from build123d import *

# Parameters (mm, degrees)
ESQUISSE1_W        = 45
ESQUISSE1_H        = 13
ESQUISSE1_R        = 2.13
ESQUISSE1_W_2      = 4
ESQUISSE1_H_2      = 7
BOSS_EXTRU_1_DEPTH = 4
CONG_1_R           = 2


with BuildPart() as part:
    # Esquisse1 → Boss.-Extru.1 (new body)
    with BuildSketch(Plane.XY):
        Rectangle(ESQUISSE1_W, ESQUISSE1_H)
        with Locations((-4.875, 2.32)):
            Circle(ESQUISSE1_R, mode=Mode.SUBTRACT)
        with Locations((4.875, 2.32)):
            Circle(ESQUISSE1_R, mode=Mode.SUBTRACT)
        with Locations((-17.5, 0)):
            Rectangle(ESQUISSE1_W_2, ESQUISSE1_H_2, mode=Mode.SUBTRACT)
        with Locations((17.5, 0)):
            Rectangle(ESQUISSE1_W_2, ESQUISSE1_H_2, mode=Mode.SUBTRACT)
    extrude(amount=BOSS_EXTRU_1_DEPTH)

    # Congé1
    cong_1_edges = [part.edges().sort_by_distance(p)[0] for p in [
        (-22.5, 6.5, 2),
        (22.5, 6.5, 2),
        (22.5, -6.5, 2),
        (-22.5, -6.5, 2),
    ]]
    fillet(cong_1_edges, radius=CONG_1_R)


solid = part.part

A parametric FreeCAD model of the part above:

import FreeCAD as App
import Part
import Sketcher
from FreeCAD import Vector
Q = App.Units.Quantity


def edges_at(feature, points):
    """Names of the edges that pass closest to the given points."""
    edges = feature.Shape.Edges
    near = lambda p: min(range(len(edges)), key=lambda i: edges[i].distToShape(Part.Vertex(*p))[0])
    return sorted({f"Edge{near(p) + 1}" for p in points})

doc = App.newDocument("Part")
body = doc.addObject("PartDesign::Body", "Body")

# Sketch on XY plane
sketch1 = body.newObject("Sketcher::SketchObject", "Sketch")
sketch1.AttachmentSupport = (doc.getObject("XY_Plane"), [""])
sketch1.MapMode = "FlatFace"
sketch1.addGeometry([
    Part.LineSegment(Vector(-22.5, 6.5, 0), Vector(-22.5, -6.5, 0)),  # 0
    Part.LineSegment(Vector(-22.5, -6.5, 0), Vector(22.5, -6.5, 0)),  # 1
    Part.LineSegment(Vector(22.5, -6.5, 0), Vector(22.5, 6.5, 0)),  # 2
    Part.LineSegment(Vector(22.5, 6.5, 0), Vector(-22.5, 6.5, 0)),  # 3
    Part.LineSegment(Vector(-15.5, -3.5, 0), Vector(-19.5, -3.5, 0)),  # 4
    Part.LineSegment(Vector(-19.5, -3.5, 0), Vector(-19.5, 3.5, 0)),  # 5
    Part.LineSegment(Vector(-19.5, 3.5, 0), Vector(-15.5, 3.5, 0)),  # 6
    Part.LineSegment(Vector(-15.5, 3.5, 0), Vector(-15.5, -3.5, 0)),  # 7
    Part.LineSegment(Vector(19.5, -3.5, 0), Vector(15.5, -3.5, 0)),  # 8
    Part.LineSegment(Vector(15.5, -3.5, 0), Vector(15.5, 3.5, 0)),  # 9
    Part.LineSegment(Vector(15.5, 3.5, 0), Vector(19.5, 3.5, 0)),  # 10
    Part.LineSegment(Vector(19.5, 3.5, 0), Vector(19.5, -3.5, 0)),  # 11
    Part.Circle(Vector(-4.9, 2.3, 0), Vector(0, 0, 1), 2.1),  # 12
    Part.Circle(Vector(4.9, 2.3, 0), Vector(0, 0, 1), 2.1),  # 13
], False)
sketch1.addConstraint([
    Sketcher.Constraint("Coincident", 0, 2, 1, 1),
    Sketcher.Constraint("Coincident", 1, 2, 2, 1),
    Sketcher.Constraint("Coincident", 2, 2, 3, 1),
    Sketcher.Constraint("Coincident", 3, 2, 0, 1),
    Sketcher.Constraint("Coincident", 4, 2, 5, 1),
    Sketcher.Constraint("Coincident", 5, 2, 6, 1),
    Sketcher.Constraint("Coincident", 6, 2, 7, 1),
    Sketcher.Constraint("Coincident", 7, 2, 4, 1),
    Sketcher.Constraint("Coincident", 8, 2, 9, 1),
    Sketcher.Constraint("Coincident", 9, 2, 10, 1),
    Sketcher.Constraint("Coincident", 10, 2, 11, 1),
    Sketcher.Constraint("Coincident", 11, 2, 8, 1),
    Sketcher.Constraint("Vertical", 0),
    Sketcher.Constraint("Horizontal", 1),
    Sketcher.Constraint("Vertical", 2),
    Sketcher.Constraint("Horizontal", 3),
    Sketcher.Constraint("Horizontal", 4),
    Sketcher.Constraint("Vertical", 5),
    Sketcher.Constraint("Horizontal", 6),
    Sketcher.Constraint("Vertical", 7),
    Sketcher.Constraint("Horizontal", 8),
    Sketcher.Constraint("Vertical", 9),
    Sketcher.Constraint("Horizontal", 10),
    Sketcher.Constraint("Vertical", 11),
    Sketcher.Constraint("Equal", 12, 13),
    Sketcher.Constraint("Symmetric", 0, 2, 2, 2, -1, 1),
    Sketcher.Constraint("Symmetric", 6, 2, 8, 2, -1, 1),
    Sketcher.Constraint("Symmetric", 4, 2, 10, 2, -1, 1),
    Sketcher.Constraint("Symmetric", 12, 3, 13, 3, -2),
    Sketcher.Constraint("Horizontal", 7, 2, 8, 2),
    Sketcher.Constraint("Diameter", 12, Q("4.26 mm")),
    Sketcher.Constraint("DistanceX", 1, 1, 1, 2, Q("45 mm")),
    Sketcher.Constraint("DistanceX", 4, 2, 4, 1, Q("4 mm")),
    Sketcher.Constraint("DistanceY", 0, 2, 0, 1, Q("13 mm")),
    Sketcher.Constraint("DistanceY", 5, 1, 5, 2, Q("7 mm")),
    Sketcher.Constraint("DistanceX", 0, 2, 4, 2, Q("3 mm")),
    Sketcher.Constraint("DistanceY", -1, 1, 12, 3, Q("2.32 mm")),
    Sketcher.Constraint("DistanceX", 12, 3, 13, 3, Q("9.75 mm")),
])
pad1 = body.newObject("PartDesign::Pad", "Pad")
pad1.Profile = sketch1
pad1.Length = 4
doc.recompute()

fillet = body.newObject("PartDesign::Fillet", "Fillet")
fillet.Base = (pad1, edges_at(pad1, [
    (-22.5, 6.5, 2),
    (22.5, 6.5, 2),
    (22.5, -6.5, 2),
    (-22.5, -6.5, 2),
]))
fillet.Radius = 2

doc.recompute()
